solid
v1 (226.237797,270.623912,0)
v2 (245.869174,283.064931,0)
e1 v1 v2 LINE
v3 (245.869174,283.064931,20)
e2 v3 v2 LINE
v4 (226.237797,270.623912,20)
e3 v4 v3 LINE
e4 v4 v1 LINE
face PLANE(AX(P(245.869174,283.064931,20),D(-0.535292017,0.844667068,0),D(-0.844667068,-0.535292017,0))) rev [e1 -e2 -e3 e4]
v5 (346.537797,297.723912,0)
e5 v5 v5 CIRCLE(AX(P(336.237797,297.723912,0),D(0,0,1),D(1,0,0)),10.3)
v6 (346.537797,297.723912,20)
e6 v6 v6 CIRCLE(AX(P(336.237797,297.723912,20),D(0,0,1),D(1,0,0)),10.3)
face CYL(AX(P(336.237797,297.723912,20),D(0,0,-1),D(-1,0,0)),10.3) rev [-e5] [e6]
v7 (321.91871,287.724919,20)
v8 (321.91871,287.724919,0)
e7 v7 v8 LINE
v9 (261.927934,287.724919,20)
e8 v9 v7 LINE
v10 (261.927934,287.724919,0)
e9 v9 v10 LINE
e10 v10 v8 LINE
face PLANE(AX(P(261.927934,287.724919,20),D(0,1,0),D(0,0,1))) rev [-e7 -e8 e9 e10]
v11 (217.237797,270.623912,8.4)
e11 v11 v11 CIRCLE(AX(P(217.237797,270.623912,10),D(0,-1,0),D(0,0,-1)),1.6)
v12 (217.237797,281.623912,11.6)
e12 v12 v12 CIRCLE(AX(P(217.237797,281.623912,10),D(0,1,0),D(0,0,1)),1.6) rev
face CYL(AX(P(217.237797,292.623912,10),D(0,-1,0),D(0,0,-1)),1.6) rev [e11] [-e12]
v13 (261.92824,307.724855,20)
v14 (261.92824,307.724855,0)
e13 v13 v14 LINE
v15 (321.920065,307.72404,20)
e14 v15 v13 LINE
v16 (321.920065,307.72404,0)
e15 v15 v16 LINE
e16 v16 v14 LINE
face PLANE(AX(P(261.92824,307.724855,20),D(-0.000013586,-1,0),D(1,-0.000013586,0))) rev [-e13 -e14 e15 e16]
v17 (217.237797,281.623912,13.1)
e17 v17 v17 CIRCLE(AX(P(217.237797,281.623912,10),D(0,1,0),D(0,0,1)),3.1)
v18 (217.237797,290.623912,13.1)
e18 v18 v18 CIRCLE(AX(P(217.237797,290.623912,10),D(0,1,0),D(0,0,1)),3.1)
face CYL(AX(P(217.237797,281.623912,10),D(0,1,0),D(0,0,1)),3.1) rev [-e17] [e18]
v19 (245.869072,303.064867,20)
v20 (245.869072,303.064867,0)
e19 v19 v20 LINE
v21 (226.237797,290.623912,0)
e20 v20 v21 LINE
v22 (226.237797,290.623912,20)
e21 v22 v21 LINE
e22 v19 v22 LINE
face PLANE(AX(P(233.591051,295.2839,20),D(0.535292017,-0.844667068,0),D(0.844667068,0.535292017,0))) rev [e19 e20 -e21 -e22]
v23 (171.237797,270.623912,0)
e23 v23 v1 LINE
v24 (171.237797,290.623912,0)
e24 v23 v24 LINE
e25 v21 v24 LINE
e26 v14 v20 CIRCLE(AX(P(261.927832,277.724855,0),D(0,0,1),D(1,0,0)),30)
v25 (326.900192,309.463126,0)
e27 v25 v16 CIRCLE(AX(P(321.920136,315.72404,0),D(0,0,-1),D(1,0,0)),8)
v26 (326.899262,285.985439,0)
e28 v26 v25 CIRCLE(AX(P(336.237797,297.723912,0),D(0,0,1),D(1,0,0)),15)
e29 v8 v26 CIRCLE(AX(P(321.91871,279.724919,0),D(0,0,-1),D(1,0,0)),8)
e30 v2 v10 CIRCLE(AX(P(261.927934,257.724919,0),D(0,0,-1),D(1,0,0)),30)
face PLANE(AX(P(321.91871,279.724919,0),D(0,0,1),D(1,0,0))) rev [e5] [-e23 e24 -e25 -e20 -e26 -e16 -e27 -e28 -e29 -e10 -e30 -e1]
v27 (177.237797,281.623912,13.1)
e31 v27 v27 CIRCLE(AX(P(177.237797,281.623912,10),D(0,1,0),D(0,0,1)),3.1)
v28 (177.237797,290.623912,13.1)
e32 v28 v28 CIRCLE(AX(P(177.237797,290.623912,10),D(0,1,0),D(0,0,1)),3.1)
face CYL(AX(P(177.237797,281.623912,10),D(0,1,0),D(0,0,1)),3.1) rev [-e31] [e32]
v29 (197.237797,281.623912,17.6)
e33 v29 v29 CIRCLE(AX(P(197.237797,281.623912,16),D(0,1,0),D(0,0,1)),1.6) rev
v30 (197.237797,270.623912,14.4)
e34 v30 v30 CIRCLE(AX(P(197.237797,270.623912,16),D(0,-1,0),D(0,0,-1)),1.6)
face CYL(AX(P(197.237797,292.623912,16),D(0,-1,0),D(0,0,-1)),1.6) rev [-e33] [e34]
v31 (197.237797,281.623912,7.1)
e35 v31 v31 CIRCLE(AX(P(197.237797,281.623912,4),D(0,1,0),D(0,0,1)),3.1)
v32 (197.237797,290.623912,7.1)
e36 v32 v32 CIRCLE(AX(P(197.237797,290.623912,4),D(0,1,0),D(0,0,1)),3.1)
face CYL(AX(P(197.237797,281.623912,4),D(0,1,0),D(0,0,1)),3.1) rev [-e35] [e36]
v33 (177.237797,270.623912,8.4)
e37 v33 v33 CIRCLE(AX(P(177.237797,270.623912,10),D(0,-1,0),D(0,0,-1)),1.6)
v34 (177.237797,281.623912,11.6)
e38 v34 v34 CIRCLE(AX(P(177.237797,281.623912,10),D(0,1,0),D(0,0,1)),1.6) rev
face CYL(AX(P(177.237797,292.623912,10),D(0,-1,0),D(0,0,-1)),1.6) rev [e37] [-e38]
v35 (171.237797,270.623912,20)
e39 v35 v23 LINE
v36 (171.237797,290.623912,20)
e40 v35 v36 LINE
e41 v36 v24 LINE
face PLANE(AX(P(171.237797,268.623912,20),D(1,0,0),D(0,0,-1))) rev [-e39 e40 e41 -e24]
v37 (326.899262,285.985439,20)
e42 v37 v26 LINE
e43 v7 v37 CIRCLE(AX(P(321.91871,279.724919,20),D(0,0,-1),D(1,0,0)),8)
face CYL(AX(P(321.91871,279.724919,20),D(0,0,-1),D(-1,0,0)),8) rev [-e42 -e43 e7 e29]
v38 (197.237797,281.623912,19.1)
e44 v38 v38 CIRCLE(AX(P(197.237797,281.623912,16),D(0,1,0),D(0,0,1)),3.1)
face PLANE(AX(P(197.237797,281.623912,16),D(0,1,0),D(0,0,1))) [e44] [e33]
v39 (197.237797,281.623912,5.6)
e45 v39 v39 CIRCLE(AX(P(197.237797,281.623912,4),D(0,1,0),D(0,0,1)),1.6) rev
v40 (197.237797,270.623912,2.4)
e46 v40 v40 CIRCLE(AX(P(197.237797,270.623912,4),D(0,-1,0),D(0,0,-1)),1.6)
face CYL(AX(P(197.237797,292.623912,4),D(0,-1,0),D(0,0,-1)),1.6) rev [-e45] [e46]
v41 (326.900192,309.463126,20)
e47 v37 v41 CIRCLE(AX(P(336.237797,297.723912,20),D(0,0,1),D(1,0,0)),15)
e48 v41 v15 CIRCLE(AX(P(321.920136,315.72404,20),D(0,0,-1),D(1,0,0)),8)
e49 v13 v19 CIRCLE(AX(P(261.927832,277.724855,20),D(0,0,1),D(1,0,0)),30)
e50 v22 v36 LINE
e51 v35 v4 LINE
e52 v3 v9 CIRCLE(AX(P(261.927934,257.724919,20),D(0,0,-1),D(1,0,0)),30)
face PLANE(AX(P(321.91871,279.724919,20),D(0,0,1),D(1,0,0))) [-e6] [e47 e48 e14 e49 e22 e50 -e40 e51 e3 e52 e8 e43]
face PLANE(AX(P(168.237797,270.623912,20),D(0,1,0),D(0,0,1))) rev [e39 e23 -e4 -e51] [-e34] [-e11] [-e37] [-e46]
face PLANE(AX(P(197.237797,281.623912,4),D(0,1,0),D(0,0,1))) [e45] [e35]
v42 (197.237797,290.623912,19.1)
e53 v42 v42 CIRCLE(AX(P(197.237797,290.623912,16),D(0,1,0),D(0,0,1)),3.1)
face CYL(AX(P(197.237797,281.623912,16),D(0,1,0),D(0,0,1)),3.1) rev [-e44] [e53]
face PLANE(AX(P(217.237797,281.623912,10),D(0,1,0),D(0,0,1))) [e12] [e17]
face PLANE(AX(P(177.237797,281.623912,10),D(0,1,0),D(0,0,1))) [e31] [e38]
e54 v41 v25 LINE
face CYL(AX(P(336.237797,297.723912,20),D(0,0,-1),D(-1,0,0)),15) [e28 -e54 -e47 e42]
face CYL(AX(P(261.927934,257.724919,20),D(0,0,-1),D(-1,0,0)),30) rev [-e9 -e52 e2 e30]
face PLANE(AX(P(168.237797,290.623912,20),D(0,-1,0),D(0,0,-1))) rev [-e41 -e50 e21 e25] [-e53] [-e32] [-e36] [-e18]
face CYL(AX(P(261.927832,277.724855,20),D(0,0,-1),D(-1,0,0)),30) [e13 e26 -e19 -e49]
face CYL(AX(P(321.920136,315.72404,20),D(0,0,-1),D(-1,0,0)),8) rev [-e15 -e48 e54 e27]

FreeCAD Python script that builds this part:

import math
import FreeCAD as App
import Part
import Sketcher
Q = App.Units.Quantity


def add_polygon(sketch, points):
    """Adds a closed chain of lines whose ends are joined by coincident constraints."""
    first, n = sketch.GeometryCount, len(points)
    for a, b in zip(points, points[1:] + points[:1]):
        sketch.addGeometry(Part.LineSegment(App.Vector(*a, 0), App.Vector(*b, 0)), False)
    for i in range(n):
        sketch.addConstraint(Sketcher.Constraint("Coincident", first + i, 2, first + (i + 1) % n, 1))

doc = App.newDocument("Part")
params = doc.addObject("Spreadsheet::Sheet", "Params")
for row, (alias, value) in enumerate([
    ("sketch1_radius", "30 mm"),
    ("sketch1_radius2", "8 mm"),
    ("sketch1_radius3", "15 mm"),
    ("sketch1_diameter", "20.6 mm"),
    ("sketch1_width", "58 mm"),
    ("pad1_length", "20 mm"),
    ("sketch2_diameter", "3.2 mm"),
    ("pocket1_length", "22 mm"),
    ("sketch3_diameter", "6.2 mm"),
    ("pocket2_length", "9 mm"),
    ("sketch4_width", "3 mm"),
    ("sketch4_height", "20 mm"),
    ("pocket3_length", "22 mm"),
], start=1):
    params.set(f"A{row}", alias)
    params.set(f"B{row}", "=" + value)
    params.setAlias(f"B{row}", alias)

body = doc.addObject("PartDesign::Body", "Body")

# Sketch on XY plane
sketch1 = doc.addObject("Sketcher::SketchObject", "Sketch")
body.addObject(sketch1)
sketch1.AttachmentSupport = (doc.XY_Plane, [""])
sketch1.MapMode = "FlatFace"
sketch1.addGeometry(Part.LineSegment(App.Vector(234, 295, 0), App.Vector(226, 291, 0)), False)
sketch1.addGeometry(Part.LineSegment(App.Vector(226, 291, 0), App.Vector(168, 291, 0)), False)
sketch1.addGeometry(Part.LineSegment(App.Vector(168, 291, 0), App.Vector(168, 271, 0)), False)
sketch1.addGeometry(Part.LineSegment(App.Vector(168, 271, 0), App.Vector(226, 271, 0)), False)
sketch1.addGeometry(Part.LineSegment(App.Vector(226, 271, 0), App.Vector(246, 283, 0)), False)
sketch1.addGeometry(Part.ArcOfCircle(Part.Circle(App.Vector(262, 258, 0), App.Vector(0, 0, 1), 30), math.radians(90), math.radians(122)), False)
sketch1.addGeometry(Part.LineSegment(App.Vector(262, 288, 0), App.Vector(322, 288, 0)), False)
sketch1.addGeometry(Part.ArcOfCircle(Part.Circle(App.Vector(322, 280, 0), App.Vector(0, 0, 1), 8), math.radians(51), math.radians(90)), False)
sketch1.addGeometry(Part.ArcOfCircle(Part.Circle(App.Vector(336, 298, 0), App.Vector(0, 0, 1), 15), math.radians(-129), math.radians(128)), False)
sketch1.addGeometry(Part.ArcOfCircle(Part.Circle(App.Vector(322, 316, 0), App.Vector(0, 0, 1), 8), math.radians(-90), math.radians(-52)), False)
sketch1.addGeometry(Part.LineSegment(App.Vector(322, 308, 0), App.Vector(262, 308, 0)), False)
sketch1.addGeometry(Part.ArcOfCircle(Part.Circle(App.Vector(262, 278, 0), App.Vector(0, 0, 1), 30), math.radians(90), math.radians(122)), False)
sketch1.addGeometry(Part.LineSegment(App.Vector(246, 303, 0), App.Vector(234, 295, 0)), False)
sketch1.addGeometry(Part.Circle(App.Vector(336, 298, 0), App.Vector(0, 0, 1), 10), False)
sketch1.addConstraint(Sketcher.Constraint("Coincident", 0, 2, 1, 1))
sketch1.addConstraint(Sketcher.Constraint("Coincident", 1, 2, 2, 1))
sketch1.addConstraint(Sketcher.Constraint("Coincident", 2, 2, 3, 1))
sketch1.addConstraint(Sketcher.Constraint("Coincident", 3, 2, 4, 1))
sketch1.addConstraint(Sketcher.Constraint("Tangent", 4, 2, 5, 2))
sketch1.addConstraint(Sketcher.Constraint("Tangent", 5, 1, 6, 1))
sketch1.addConstraint(Sketcher.Constraint("Tangent", 6, 2, 7, 2))
sketch1.addConstraint(Sketcher.Constraint("Tangent", 7, 1, 8, 1))
sketch1.addConstraint(Sketcher.Constraint("Tangent", 8, 2, 9, 2))
sketch1.addConstraint(Sketcher.Constraint("Coincident", 9, 1, 10, 1))
sketch1.addConstraint(Sketcher.Constraint("Tangent", 10, 2, 11, 1))
sketch1.addConstraint(Sketcher.Constraint("Tangent", 11, 2, 12, 1))
sketch1.addConstraint(Sketcher.Constraint("Coincident", 12, 2, 0, 1))
sketch1.addConstraint(Sketcher.Constraint("Horizontal", 1))
sketch1.addConstraint(Sketcher.Constraint("Vertical", 2))
sketch1.addConstraint(Sketcher.Constraint("Horizontal", 3))
sketch1.addConstraint(Sketcher.Constraint("Horizontal", 6))
sketch1.addConstraint(Sketcher.Constraint("Coincident", 13, 3, 8, 3))
sketch1.addConstraint(Sketcher.Constraint("Equal", 7, 9))
sketch1.addConstraint(Sketcher.Constraint("Equal", 5, 11))
sketch1.addConstraint(Sketcher.Constraint("Parallel", 0, 4))
sketch1.addConstraint(Sketcher.Constraint("Parallel", 4, 12))
sketch1.addConstraint(Sketcher.Constraint("Vertical", 0, 2, 3, 2))
sketch1.addConstraint(Sketcher.Constraint("Radius", 5, Q("30 mm")))
sketch1.addConstraint(Sketcher.Constraint("Radius", 7, Q("8 mm")))
sketch1.addConstraint(Sketcher.Constraint("Radius", 8, Q("15 mm")))
sketch1.addConstraint(Sketcher.Constraint("Diameter", 13, Q("20.6 mm")))
sketch1.addConstraint(Sketcher.Constraint("DistanceX", 1, 2, 1, 1, Q("58 mm")))
sketch1.addConstraint(Sketcher.Constraint("DistanceY", 2, 2, 2, 1, Q("20 mm")))
sketch1.addConstraint(Sketcher.Constraint("DistanceX", 0, 2, 8, 3, Q("110 mm")))
sketch1.addConstraint(Sketcher.Constraint("DistanceY", 0, 2, 8, 3, Q("7.1 mm")))
sketch1.addConstraint(Sketcher.Constraint("DistanceY", -1, 1, 12, 2, Q("295.2839 mm")))
sketch1.addConstraint(Sketcher.Constraint("DistanceX", 11, 3, 5, 3, Q("0.000102 mm")))
sketch1.addConstraint(Sketcher.Constraint("DistanceY", 7, 1, 9, 3, Q("29.738601 mm")))
sketch1.addConstraint(Sketcher.Constraint("Distance", 12, Q("14.535929 mm")))
sketch1.addConstraint(Sketcher.Constraint("DistanceX", 6, 1, 6, 2, Q("59.990776 mm")))
sketch1.addConstraint(Sketcher.Constraint("DistanceY", -1, 1, 5, 3, Q("257.724919 mm")))
sketch1.addConstraint(Sketcher.Constraint("DistanceX", -1, 1, 7, 3, Q("321.91871 mm")))
sketch1.addConstraint(Sketcher.Constraint("DistanceX", 9, 1, 13, 3, Q("14.317732 mm")))
sketch1.setExpression("Constraints[23]", "Params.sketch1_radius")
sketch1.setExpression("Constraints[24]", "Params.sketch1_radius2")
sketch1.setExpression("Constraints[25]", "Params.sketch1_radius3")
sketch1.setExpression("Constraints[26]", "Params.sketch1_diameter")
sketch1.setExpression("Constraints[27]", "Params.sketch1_width")
pad1 = doc.addObject("PartDesign::Pad", "Pad")
body.addObject(pad1)
pad1.Profile = sketch1
pad1.setExpression("Length", "Params.pad1_length")

# Sketch on XZ plane
sketch2 = doc.addObject("Sketcher::SketchObject", "Sketch001")
body.addObject(sketch2)
sketch2.AttachmentSupport = (doc.XZ_Plane, [""])
sketch2.MapMode = "FlatFace"
sketch2.AttachmentOffset = App.Placement(App.Vector(0, 0, -270.623912), App.Rotation())
sketch2.addGeometry(Part.Circle(App.Vector(177.2, 10, 0), App.Vector(0, 0, 1), 1.6), False)
sketch2.addGeometry(Part.Circle(App.Vector(217.2, 10, 0), App.Vector(0, 0, 1), 1.6), False)
sketch2.addGeometry(Part.Circle(App.Vector(197.2, 16, 0), App.Vector(0, 0, 1), 1.6), False)
sketch2.addGeometry(Part.Circle(App.Vector(197.2, 4, 0), App.Vector(0, 0, 1), 1.6), False)
sketch2.addConstraint(Sketcher.Constraint("Equal", 0, 1))
sketch2.addConstraint(Sketcher.Constraint("Equal", 1, 2))
sketch2.addConstraint(Sketcher.Constraint("Equal", 2, 3))
sketch2.addConstraint(Sketcher.Constraint("Horizontal", 0, 3, 1, 3))
sketch2.addConstraint(Sketcher.Constraint("Vertical", 2, 3, 3, 3))
sketch2.addConstraint(Sketcher.Constraint("Diameter", 0, Q("3.2 mm")))
sketch2.addConstraint(Sketcher.Constraint("DistanceY", -1, 1, 0, 3, Q("10 mm")))
sketch2.addConstraint(Sketcher.Constraint("DistanceY", -1, 1, 2, 3, Q("16 mm")))
sketch2.addConstraint(Sketcher.Constraint("DistanceY", -1, 1, 3, 3, Q("4 mm")))
sketch2.addConstraint(Sketcher.Constraint("DistanceX", 0, 3, 1, 3, Q("40 mm")))
sketch2.addConstraint(Sketcher.Constraint("DistanceX", 0, 3, 2, 3, Q("20 mm")))
sketch2.addConstraint(Sketcher.Constraint("DistanceX", -1, 1, 0, 3, Q("177.237797 mm")))
sketch2.setExpression("Constraints[5]", "Params.sketch2_diameter")
pocket1 = doc.addObject("PartDesign::Pocket", "Pocket")
body.addObject(pocket1)
pocket1.Profile = sketch2
pocket1.setExpression("Length", "Params.pocket1_length")

# Sketch on XZ plane
sketch3 = doc.addObject("Sketcher::SketchObject", "Sketch002")
body.addObject(sketch3)
sketch3.AttachmentSupport = (doc.XZ_Plane, [""])
sketch3.MapMode = "FlatFace"
sketch3.AttachmentOffset = App.Placement(App.Vector(0, 0, -290.623912), App.Rotation())
sketch3.addGeometry(Part.Circle(App.Vector(177.2, 10, 0), App.Vector(0, 0, 1), 3.1), False)
sketch3.addGeometry(Part.Circle(App.Vector(197.2, 16, 0), App.Vector(0, 0, 1), 3.1), False)
sketch3.addGeometry(Part.Circle(App.Vector(197.2, 4, 0), App.Vector(0, 0, 1), 3.1), False)
sketch3.addGeometry(Part.Circle(App.Vector(217.2, 10, 0), App.Vector(0, 0, 1), 3.1), False)
sketch3.addConstraint(Sketcher.Constraint("Equal", 0, 1))
sketch3.addConstraint(Sketcher.Constraint("Equal", 1, 2))
sketch3.addConstraint(Sketcher.Constraint("Equal", 2, 3))
sketch3.addConstraint(Sketcher.Constraint("Horizontal", 0, 3, 3, 3))
sketch3.addConstraint(Sketcher.Constraint("Vertical", 1, 3, 2, 3))
sketch3.addConstraint(Sketcher.Constraint("Diameter", 0, Q("6.2 mm")))
sketch3.addConstraint(Sketcher.Constraint("DistanceY", -1, 1, 0, 3, Q("10 mm")))
sketch3.addConstraint(Sketcher.Constraint("DistanceY", -1, 1, 1, 3, Q("16 mm")))
sketch3.addConstraint(Sketcher.Constraint("DistanceY", -1, 1, 2, 3, Q("4 mm")))
sketch3.addConstraint(Sketcher.Constraint("DistanceX", 0, 3, 1, 3, Q("20 mm")))
sketch3.addConstraint(Sketcher.Constraint("DistanceX", 1, 3, 3, 3, Q("20 mm")))
sketch3.addConstraint(Sketcher.Constraint("DistanceX", -1, 1, 0, 3, Q("177.237797 mm")))
sketch3.setExpression("Constraints[5]", "Params.sketch3_diameter")
pocket2 = doc.addObject("PartDesign::Pocket", "Pocket001")
body.addObject(pocket2)
pocket2.Profile = sketch3
pocket2.setExpression("Length", "Params.pocket2_length")
pocket2.Reversed = True

# Sketch on XZ plane
sketch4 = doc.addObject("Sketcher::SketchObject", "Sketch003")
body.addObject(sketch4)
sketch4.AttachmentSupport = (doc.XZ_Plane, [""])
sketch4.MapMode = "FlatFace"
sketch4.AttachmentOffset = App.Placement(App.Vector(0, 0, -290.623912), App.Rotation())
add_polygon(sketch4, [(168.2, 0), (168.2, 20), (171.2, 20), (171.2, 0)])  # lines 0-3
sketch4.addConstraint(Sketcher.Constraint("Vertical", 0))
sketch4.addConstraint(Sketcher.Constraint("Horizontal", 1))
sketch4.addConstraint(Sketcher.Constraint("Vertical", 2))
sketch4.addConstraint(Sketcher.Constraint("Horizontal", 3))
sketch4.addConstraint(Sketcher.Constraint("PointOnObject", 2, 2, -1))
sketch4.addConstraint(Sketcher.Constraint("DistanceX", 1, 1, 1, 2, Q("3 mm")))
sketch4.addConstraint(Sketcher.Constraint("DistanceY", 0, 1, 0, 2, Q("20 mm")))
sketch4.addConstraint(Sketcher.Constraint("DistanceX", -1, 1, 0, 2, Q("168.237797 mm")))
sketch4.setExpression("Constraints[9]", "Params.sketch4_width")
sketch4.setExpression("Constraints[10]", "Params.sketch4_height")
pocket3 = doc.addObject("PartDesign::Pocket", "Pocket002")
body.addObject(pocket3)
pocket3.Profile = sketch4
pocket3.setExpression("Length", "Params.pocket3_length")
pocket3.Reversed = True

doc.recompute()
